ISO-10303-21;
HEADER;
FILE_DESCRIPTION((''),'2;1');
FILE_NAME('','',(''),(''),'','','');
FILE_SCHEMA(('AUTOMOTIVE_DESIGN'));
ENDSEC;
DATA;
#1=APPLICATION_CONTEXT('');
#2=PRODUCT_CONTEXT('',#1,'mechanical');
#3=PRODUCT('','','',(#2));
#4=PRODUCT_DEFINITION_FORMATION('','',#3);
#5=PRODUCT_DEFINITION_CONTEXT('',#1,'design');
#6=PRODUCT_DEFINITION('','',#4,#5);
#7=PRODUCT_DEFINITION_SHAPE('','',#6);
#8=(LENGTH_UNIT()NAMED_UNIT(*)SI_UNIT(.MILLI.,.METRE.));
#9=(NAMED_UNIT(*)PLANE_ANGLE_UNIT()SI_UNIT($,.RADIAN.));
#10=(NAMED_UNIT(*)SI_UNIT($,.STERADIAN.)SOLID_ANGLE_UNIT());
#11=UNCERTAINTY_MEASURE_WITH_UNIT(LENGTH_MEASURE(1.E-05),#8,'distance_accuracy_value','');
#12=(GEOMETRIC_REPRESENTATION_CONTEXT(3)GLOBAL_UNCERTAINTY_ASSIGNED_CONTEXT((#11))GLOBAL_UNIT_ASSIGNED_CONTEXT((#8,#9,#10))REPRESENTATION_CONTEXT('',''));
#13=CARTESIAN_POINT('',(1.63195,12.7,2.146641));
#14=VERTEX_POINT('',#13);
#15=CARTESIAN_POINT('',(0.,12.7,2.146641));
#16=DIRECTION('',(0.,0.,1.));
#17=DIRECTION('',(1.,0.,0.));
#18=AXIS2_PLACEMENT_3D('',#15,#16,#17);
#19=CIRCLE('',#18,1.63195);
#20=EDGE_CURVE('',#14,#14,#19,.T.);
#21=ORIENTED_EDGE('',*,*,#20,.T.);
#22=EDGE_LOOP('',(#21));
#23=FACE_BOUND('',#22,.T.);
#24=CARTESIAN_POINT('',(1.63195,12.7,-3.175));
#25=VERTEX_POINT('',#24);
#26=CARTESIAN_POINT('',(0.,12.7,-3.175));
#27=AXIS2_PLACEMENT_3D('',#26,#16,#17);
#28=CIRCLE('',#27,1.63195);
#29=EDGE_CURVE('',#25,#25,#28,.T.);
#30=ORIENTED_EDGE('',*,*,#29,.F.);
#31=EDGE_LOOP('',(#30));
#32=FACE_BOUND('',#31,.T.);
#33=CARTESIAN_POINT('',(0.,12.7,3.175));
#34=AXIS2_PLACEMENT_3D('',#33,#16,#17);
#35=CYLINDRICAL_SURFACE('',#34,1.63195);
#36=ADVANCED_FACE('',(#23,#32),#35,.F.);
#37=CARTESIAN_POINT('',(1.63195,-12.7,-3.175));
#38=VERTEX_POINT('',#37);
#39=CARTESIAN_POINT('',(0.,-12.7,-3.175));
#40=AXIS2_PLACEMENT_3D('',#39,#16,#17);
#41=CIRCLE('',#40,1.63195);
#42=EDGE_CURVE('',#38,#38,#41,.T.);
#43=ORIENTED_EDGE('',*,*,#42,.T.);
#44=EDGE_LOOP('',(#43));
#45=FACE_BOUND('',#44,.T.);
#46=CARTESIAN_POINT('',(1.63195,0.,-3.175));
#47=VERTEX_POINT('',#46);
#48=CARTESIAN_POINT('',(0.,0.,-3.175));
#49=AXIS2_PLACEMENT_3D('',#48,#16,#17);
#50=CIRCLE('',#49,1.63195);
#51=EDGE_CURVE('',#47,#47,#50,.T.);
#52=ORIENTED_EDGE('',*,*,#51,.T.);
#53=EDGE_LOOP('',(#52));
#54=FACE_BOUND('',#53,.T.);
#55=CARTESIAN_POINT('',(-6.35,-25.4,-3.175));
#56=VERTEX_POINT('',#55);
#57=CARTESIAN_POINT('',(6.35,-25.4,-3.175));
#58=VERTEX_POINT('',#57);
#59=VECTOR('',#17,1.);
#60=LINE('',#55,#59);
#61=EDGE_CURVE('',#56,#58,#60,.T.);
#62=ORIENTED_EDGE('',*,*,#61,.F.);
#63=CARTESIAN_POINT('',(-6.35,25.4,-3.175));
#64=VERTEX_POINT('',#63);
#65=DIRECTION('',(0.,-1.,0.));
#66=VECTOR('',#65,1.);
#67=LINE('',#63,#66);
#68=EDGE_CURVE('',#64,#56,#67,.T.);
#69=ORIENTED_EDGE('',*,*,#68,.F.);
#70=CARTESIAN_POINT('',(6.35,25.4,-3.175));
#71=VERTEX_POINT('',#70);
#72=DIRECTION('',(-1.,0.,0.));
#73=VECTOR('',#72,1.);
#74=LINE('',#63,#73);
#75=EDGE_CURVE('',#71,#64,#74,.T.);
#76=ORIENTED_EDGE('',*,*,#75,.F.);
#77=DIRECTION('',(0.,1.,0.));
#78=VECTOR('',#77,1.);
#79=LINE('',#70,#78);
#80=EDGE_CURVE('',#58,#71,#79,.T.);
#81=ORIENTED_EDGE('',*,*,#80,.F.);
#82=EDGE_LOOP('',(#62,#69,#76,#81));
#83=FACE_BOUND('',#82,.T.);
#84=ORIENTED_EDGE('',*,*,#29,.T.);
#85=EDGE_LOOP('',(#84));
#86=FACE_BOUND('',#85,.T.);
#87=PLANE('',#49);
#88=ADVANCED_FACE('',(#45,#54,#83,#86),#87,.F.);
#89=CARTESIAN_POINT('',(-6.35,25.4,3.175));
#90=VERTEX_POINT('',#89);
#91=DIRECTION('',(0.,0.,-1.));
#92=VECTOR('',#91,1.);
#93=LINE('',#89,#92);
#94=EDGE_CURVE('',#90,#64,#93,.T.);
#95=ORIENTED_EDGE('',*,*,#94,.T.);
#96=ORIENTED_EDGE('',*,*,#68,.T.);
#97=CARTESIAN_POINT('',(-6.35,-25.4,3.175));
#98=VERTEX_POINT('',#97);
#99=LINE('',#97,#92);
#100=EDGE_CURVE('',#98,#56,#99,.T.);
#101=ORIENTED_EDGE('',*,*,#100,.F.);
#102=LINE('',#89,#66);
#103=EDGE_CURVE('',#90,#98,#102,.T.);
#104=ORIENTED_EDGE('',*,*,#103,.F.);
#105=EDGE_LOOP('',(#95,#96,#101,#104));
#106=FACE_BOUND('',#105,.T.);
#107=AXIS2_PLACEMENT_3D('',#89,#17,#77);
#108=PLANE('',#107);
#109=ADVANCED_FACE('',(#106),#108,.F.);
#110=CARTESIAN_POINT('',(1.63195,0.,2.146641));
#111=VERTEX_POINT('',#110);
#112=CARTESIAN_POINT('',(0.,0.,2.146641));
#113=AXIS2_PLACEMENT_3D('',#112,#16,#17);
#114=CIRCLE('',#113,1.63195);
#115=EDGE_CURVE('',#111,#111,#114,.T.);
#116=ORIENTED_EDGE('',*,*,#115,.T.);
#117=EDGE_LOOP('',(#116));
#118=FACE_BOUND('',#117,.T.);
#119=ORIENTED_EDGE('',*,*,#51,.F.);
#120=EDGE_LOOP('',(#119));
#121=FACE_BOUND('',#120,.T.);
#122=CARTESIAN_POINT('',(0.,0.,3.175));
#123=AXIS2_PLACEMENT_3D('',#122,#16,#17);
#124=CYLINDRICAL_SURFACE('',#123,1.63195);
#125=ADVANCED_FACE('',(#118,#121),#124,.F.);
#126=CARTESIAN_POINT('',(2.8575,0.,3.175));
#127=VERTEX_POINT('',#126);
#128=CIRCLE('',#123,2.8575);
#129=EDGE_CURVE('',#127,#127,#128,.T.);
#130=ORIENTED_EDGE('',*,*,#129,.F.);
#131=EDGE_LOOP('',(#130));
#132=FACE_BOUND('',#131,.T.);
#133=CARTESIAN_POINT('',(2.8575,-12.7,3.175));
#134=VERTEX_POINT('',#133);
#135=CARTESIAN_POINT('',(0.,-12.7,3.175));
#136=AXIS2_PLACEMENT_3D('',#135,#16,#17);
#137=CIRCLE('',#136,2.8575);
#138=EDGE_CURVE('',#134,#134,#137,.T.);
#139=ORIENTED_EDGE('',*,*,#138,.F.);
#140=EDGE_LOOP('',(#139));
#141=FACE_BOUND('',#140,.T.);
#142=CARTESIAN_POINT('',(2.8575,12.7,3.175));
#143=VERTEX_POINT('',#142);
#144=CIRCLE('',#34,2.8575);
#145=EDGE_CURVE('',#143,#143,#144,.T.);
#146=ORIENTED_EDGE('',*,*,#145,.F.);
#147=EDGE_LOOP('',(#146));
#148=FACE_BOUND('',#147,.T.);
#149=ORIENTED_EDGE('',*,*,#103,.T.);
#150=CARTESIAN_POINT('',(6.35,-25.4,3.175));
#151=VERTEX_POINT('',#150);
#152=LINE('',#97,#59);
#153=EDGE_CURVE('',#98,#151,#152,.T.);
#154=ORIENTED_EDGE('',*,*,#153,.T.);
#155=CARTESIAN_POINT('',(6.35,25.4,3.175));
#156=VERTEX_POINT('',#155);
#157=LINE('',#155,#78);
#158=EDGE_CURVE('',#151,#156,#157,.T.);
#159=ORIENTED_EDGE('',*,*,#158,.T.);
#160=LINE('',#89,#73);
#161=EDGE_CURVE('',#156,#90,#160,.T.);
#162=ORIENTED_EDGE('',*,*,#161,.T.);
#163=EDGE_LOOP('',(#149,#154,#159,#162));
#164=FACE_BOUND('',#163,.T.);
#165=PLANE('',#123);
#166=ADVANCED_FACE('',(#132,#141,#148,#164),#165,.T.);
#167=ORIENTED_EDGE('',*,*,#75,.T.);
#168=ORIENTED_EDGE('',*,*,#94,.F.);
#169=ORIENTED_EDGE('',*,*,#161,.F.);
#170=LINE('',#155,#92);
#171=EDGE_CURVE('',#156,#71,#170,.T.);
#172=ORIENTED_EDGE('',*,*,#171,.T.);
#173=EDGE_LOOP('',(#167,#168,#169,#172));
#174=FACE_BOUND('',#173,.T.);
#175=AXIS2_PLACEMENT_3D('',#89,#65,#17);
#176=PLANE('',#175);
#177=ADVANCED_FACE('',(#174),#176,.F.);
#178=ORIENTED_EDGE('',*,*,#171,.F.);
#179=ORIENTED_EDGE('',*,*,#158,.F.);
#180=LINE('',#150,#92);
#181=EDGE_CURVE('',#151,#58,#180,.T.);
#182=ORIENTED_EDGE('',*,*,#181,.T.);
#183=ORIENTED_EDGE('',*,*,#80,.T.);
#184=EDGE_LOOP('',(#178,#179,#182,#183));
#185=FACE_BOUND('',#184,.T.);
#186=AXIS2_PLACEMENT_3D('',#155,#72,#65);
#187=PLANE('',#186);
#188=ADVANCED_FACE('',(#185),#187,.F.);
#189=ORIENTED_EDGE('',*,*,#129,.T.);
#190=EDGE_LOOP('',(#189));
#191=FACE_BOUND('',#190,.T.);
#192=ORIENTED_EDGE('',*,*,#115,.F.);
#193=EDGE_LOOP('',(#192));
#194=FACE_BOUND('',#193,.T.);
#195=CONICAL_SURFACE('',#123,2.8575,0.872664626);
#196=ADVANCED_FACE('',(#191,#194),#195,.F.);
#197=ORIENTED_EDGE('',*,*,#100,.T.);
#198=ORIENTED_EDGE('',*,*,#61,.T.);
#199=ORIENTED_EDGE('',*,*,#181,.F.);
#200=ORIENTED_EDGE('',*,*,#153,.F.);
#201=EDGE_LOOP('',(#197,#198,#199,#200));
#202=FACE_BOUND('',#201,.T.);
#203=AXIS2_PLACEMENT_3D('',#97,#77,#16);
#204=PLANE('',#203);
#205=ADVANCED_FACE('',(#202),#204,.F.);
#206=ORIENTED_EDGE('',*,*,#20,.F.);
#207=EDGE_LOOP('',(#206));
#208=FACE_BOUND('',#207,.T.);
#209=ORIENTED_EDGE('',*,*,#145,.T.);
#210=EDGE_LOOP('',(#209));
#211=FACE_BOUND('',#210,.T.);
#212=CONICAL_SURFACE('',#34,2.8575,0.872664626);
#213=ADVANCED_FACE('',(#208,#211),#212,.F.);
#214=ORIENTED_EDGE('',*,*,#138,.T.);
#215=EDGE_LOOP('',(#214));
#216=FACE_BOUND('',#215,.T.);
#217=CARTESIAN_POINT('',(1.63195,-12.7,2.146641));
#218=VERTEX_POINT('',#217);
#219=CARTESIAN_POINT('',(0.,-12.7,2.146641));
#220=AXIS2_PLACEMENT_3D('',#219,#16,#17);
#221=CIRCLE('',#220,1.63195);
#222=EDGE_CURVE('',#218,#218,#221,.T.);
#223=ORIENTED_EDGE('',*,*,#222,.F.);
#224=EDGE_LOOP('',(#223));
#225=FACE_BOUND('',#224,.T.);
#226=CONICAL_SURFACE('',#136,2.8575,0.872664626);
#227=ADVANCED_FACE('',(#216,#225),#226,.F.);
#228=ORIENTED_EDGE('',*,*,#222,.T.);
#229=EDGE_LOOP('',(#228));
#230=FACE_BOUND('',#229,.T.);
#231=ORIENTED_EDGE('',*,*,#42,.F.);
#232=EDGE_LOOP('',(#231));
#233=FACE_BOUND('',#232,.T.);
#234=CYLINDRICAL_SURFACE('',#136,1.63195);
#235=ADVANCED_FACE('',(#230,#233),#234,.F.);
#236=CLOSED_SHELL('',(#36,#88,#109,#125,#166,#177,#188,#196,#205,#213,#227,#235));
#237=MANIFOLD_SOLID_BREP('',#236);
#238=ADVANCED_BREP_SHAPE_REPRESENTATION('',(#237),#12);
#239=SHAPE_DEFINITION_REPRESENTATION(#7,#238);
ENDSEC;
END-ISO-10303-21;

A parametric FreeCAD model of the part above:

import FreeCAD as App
import Part
import Sketcher
Q = App.Units.Quantity

doc = App.newDocument("Part")
params = doc.addObject("Spreadsheet::Sheet", "Params")
for row, (alias, value) in enumerate([
    ("sketch1_height", "2 in"),
    ("sketch1_width", "0.5 in"),
    ("pad1_length", "0.25 in"),
    ("hole_diameter", "0.1285 in"),
    ("hole_csink_diameter", "0.225 in"),
], start=1):
    params.set(f"A{row}", alias)
    params.set(f"B{row}", "=" + value)
    params.setAlias(f"B{row}", alias)

body = doc.addObject("PartDesign::Body", "Body")

# Sketch on XY plane
sketch1 = body.newObject("Sketcher::SketchObject", "Sketch")
sketch1.AttachmentSupport = (doc.getObject("XY_Plane"), [""])
sketch1.MapMode = "FlatFace"
sketch1.addGeometry(Part.LineSegment(App.Vector(-6, 25, 0), App.Vector(-6, -25, 0)), False)
sketch1.addGeometry(Part.LineSegment(App.Vector(-6, -25, 0), App.Vector(6, -25, 0)), False)
sketch1.addGeometry(Part.LineSegment(App.Vector(6, -25, 0), App.Vector(6, 25, 0)), False)
sketch1.addGeometry(Part.LineSegment(App.Vector(6, 25, 0), App.Vector(-6, 25, 0)), False)
sketch1.addConstraint(Sketcher.Constraint("Coincident", 0, 2, 1, 1))
sketch1.addConstraint(Sketcher.Constraint("Coincident", 1, 2, 2, 1))
sketch1.addConstraint(Sketcher.Constraint("Coincident", 2, 2, 3, 1))
sketch1.addConstraint(Sketcher.Constraint("Coincident", 3, 2, 0, 1))
sketch1.addConstraint(Sketcher.Constraint("Vertical", 0))
sketch1.addConstraint(Sketcher.Constraint("Horizontal", 1))
sketch1.addConstraint(Sketcher.Constraint("Vertical", 2))
sketch1.addConstraint(Sketcher.Constraint("Horizontal", 3))
sketch1.addConstraint(Sketcher.Constraint("Symmetric", 0, 2, 2, 2, -1, 1))
sketch1.addConstraint(Sketcher.Constraint("DistanceY", 0, 2, 0, 1, Q("2 in")))
sketch1.addConstraint(Sketcher.Constraint("DistanceX", 1, 1, 1, 2, Q("0.5 in")))
sketch1.setExpression("Constraints[9]", "Params.sketch1_height")
sketch1.setExpression("Constraints[10]", "Params.sketch1_width")
pad1 = body.newObject("PartDesign::Pad", "Pad")
pad1.Profile = sketch1
pad1.setExpression("Length", "Params.pad1_length")
pad1.Midplane = True

# Sketch on XY plane
sketch2 = body.newObject("Sketcher::SketchObject", "Sketch001")
sketch2.AttachmentSupport = (doc.getObject("XY_Plane"), [""])
sketch2.MapMode = "FlatFace"
sketch2.AttachmentOffset = App.Placement(App.Vector(0, 0, 0.125 * 25.4), App.Rotation())
sketch2.addGeometry(Part.Circle(App.Vector(0, 12.7, 0), App.Vector(0, 0, 1), 1.6), False)
sketch2.addGeometry(Part.Circle(App.Vector(0, 0, 0), App.Vector(0, 0, 1), 1.6), False)
sketch2.addGeometry(Part.Circle(App.Vector(0, -12.7, 0), App.Vector(0, 0, 1), 1.6), False)
sketch2.addConstraint(Sketcher.Constraint("Coincident", 1, 3, -1, 1))
sketch2.addConstraint(Sketcher.Constraint("Equal", 0, 1))
sketch2.addConstraint(Sketcher.Constraint("Equal", 1, 2))
sketch2.addConstraint(Sketcher.Constraint("Symmetric", 0, 3, 2, 3, -1, 1))
sketch2.addConstraint(Sketcher.Constraint("PointOnObject", 0, 3, -2))
sketch2.addConstraint(Sketcher.Constraint("DistanceY", 2, 3, 0, 3, Q("1 in")))
sketch2.addConstraint(Sketcher.Constraint("Diameter", 0, Q("0.1285 in")))
doc.recompute()
hole = body.newObject("PartDesign::Hole", "Hole")
hole.Profile = sketch2
hole.ThreadType = "None"
hole.setExpression("Diameter", "Params.hole_diameter")
hole.DepthType = "ThroughAll"
hole.HoleCutType = "Countersink"
hole.setExpression("HoleCutDiameter", "Params.hole_csink_diameter")
hole.HoleCutCountersinkAngle = 100

doc.recompute()
